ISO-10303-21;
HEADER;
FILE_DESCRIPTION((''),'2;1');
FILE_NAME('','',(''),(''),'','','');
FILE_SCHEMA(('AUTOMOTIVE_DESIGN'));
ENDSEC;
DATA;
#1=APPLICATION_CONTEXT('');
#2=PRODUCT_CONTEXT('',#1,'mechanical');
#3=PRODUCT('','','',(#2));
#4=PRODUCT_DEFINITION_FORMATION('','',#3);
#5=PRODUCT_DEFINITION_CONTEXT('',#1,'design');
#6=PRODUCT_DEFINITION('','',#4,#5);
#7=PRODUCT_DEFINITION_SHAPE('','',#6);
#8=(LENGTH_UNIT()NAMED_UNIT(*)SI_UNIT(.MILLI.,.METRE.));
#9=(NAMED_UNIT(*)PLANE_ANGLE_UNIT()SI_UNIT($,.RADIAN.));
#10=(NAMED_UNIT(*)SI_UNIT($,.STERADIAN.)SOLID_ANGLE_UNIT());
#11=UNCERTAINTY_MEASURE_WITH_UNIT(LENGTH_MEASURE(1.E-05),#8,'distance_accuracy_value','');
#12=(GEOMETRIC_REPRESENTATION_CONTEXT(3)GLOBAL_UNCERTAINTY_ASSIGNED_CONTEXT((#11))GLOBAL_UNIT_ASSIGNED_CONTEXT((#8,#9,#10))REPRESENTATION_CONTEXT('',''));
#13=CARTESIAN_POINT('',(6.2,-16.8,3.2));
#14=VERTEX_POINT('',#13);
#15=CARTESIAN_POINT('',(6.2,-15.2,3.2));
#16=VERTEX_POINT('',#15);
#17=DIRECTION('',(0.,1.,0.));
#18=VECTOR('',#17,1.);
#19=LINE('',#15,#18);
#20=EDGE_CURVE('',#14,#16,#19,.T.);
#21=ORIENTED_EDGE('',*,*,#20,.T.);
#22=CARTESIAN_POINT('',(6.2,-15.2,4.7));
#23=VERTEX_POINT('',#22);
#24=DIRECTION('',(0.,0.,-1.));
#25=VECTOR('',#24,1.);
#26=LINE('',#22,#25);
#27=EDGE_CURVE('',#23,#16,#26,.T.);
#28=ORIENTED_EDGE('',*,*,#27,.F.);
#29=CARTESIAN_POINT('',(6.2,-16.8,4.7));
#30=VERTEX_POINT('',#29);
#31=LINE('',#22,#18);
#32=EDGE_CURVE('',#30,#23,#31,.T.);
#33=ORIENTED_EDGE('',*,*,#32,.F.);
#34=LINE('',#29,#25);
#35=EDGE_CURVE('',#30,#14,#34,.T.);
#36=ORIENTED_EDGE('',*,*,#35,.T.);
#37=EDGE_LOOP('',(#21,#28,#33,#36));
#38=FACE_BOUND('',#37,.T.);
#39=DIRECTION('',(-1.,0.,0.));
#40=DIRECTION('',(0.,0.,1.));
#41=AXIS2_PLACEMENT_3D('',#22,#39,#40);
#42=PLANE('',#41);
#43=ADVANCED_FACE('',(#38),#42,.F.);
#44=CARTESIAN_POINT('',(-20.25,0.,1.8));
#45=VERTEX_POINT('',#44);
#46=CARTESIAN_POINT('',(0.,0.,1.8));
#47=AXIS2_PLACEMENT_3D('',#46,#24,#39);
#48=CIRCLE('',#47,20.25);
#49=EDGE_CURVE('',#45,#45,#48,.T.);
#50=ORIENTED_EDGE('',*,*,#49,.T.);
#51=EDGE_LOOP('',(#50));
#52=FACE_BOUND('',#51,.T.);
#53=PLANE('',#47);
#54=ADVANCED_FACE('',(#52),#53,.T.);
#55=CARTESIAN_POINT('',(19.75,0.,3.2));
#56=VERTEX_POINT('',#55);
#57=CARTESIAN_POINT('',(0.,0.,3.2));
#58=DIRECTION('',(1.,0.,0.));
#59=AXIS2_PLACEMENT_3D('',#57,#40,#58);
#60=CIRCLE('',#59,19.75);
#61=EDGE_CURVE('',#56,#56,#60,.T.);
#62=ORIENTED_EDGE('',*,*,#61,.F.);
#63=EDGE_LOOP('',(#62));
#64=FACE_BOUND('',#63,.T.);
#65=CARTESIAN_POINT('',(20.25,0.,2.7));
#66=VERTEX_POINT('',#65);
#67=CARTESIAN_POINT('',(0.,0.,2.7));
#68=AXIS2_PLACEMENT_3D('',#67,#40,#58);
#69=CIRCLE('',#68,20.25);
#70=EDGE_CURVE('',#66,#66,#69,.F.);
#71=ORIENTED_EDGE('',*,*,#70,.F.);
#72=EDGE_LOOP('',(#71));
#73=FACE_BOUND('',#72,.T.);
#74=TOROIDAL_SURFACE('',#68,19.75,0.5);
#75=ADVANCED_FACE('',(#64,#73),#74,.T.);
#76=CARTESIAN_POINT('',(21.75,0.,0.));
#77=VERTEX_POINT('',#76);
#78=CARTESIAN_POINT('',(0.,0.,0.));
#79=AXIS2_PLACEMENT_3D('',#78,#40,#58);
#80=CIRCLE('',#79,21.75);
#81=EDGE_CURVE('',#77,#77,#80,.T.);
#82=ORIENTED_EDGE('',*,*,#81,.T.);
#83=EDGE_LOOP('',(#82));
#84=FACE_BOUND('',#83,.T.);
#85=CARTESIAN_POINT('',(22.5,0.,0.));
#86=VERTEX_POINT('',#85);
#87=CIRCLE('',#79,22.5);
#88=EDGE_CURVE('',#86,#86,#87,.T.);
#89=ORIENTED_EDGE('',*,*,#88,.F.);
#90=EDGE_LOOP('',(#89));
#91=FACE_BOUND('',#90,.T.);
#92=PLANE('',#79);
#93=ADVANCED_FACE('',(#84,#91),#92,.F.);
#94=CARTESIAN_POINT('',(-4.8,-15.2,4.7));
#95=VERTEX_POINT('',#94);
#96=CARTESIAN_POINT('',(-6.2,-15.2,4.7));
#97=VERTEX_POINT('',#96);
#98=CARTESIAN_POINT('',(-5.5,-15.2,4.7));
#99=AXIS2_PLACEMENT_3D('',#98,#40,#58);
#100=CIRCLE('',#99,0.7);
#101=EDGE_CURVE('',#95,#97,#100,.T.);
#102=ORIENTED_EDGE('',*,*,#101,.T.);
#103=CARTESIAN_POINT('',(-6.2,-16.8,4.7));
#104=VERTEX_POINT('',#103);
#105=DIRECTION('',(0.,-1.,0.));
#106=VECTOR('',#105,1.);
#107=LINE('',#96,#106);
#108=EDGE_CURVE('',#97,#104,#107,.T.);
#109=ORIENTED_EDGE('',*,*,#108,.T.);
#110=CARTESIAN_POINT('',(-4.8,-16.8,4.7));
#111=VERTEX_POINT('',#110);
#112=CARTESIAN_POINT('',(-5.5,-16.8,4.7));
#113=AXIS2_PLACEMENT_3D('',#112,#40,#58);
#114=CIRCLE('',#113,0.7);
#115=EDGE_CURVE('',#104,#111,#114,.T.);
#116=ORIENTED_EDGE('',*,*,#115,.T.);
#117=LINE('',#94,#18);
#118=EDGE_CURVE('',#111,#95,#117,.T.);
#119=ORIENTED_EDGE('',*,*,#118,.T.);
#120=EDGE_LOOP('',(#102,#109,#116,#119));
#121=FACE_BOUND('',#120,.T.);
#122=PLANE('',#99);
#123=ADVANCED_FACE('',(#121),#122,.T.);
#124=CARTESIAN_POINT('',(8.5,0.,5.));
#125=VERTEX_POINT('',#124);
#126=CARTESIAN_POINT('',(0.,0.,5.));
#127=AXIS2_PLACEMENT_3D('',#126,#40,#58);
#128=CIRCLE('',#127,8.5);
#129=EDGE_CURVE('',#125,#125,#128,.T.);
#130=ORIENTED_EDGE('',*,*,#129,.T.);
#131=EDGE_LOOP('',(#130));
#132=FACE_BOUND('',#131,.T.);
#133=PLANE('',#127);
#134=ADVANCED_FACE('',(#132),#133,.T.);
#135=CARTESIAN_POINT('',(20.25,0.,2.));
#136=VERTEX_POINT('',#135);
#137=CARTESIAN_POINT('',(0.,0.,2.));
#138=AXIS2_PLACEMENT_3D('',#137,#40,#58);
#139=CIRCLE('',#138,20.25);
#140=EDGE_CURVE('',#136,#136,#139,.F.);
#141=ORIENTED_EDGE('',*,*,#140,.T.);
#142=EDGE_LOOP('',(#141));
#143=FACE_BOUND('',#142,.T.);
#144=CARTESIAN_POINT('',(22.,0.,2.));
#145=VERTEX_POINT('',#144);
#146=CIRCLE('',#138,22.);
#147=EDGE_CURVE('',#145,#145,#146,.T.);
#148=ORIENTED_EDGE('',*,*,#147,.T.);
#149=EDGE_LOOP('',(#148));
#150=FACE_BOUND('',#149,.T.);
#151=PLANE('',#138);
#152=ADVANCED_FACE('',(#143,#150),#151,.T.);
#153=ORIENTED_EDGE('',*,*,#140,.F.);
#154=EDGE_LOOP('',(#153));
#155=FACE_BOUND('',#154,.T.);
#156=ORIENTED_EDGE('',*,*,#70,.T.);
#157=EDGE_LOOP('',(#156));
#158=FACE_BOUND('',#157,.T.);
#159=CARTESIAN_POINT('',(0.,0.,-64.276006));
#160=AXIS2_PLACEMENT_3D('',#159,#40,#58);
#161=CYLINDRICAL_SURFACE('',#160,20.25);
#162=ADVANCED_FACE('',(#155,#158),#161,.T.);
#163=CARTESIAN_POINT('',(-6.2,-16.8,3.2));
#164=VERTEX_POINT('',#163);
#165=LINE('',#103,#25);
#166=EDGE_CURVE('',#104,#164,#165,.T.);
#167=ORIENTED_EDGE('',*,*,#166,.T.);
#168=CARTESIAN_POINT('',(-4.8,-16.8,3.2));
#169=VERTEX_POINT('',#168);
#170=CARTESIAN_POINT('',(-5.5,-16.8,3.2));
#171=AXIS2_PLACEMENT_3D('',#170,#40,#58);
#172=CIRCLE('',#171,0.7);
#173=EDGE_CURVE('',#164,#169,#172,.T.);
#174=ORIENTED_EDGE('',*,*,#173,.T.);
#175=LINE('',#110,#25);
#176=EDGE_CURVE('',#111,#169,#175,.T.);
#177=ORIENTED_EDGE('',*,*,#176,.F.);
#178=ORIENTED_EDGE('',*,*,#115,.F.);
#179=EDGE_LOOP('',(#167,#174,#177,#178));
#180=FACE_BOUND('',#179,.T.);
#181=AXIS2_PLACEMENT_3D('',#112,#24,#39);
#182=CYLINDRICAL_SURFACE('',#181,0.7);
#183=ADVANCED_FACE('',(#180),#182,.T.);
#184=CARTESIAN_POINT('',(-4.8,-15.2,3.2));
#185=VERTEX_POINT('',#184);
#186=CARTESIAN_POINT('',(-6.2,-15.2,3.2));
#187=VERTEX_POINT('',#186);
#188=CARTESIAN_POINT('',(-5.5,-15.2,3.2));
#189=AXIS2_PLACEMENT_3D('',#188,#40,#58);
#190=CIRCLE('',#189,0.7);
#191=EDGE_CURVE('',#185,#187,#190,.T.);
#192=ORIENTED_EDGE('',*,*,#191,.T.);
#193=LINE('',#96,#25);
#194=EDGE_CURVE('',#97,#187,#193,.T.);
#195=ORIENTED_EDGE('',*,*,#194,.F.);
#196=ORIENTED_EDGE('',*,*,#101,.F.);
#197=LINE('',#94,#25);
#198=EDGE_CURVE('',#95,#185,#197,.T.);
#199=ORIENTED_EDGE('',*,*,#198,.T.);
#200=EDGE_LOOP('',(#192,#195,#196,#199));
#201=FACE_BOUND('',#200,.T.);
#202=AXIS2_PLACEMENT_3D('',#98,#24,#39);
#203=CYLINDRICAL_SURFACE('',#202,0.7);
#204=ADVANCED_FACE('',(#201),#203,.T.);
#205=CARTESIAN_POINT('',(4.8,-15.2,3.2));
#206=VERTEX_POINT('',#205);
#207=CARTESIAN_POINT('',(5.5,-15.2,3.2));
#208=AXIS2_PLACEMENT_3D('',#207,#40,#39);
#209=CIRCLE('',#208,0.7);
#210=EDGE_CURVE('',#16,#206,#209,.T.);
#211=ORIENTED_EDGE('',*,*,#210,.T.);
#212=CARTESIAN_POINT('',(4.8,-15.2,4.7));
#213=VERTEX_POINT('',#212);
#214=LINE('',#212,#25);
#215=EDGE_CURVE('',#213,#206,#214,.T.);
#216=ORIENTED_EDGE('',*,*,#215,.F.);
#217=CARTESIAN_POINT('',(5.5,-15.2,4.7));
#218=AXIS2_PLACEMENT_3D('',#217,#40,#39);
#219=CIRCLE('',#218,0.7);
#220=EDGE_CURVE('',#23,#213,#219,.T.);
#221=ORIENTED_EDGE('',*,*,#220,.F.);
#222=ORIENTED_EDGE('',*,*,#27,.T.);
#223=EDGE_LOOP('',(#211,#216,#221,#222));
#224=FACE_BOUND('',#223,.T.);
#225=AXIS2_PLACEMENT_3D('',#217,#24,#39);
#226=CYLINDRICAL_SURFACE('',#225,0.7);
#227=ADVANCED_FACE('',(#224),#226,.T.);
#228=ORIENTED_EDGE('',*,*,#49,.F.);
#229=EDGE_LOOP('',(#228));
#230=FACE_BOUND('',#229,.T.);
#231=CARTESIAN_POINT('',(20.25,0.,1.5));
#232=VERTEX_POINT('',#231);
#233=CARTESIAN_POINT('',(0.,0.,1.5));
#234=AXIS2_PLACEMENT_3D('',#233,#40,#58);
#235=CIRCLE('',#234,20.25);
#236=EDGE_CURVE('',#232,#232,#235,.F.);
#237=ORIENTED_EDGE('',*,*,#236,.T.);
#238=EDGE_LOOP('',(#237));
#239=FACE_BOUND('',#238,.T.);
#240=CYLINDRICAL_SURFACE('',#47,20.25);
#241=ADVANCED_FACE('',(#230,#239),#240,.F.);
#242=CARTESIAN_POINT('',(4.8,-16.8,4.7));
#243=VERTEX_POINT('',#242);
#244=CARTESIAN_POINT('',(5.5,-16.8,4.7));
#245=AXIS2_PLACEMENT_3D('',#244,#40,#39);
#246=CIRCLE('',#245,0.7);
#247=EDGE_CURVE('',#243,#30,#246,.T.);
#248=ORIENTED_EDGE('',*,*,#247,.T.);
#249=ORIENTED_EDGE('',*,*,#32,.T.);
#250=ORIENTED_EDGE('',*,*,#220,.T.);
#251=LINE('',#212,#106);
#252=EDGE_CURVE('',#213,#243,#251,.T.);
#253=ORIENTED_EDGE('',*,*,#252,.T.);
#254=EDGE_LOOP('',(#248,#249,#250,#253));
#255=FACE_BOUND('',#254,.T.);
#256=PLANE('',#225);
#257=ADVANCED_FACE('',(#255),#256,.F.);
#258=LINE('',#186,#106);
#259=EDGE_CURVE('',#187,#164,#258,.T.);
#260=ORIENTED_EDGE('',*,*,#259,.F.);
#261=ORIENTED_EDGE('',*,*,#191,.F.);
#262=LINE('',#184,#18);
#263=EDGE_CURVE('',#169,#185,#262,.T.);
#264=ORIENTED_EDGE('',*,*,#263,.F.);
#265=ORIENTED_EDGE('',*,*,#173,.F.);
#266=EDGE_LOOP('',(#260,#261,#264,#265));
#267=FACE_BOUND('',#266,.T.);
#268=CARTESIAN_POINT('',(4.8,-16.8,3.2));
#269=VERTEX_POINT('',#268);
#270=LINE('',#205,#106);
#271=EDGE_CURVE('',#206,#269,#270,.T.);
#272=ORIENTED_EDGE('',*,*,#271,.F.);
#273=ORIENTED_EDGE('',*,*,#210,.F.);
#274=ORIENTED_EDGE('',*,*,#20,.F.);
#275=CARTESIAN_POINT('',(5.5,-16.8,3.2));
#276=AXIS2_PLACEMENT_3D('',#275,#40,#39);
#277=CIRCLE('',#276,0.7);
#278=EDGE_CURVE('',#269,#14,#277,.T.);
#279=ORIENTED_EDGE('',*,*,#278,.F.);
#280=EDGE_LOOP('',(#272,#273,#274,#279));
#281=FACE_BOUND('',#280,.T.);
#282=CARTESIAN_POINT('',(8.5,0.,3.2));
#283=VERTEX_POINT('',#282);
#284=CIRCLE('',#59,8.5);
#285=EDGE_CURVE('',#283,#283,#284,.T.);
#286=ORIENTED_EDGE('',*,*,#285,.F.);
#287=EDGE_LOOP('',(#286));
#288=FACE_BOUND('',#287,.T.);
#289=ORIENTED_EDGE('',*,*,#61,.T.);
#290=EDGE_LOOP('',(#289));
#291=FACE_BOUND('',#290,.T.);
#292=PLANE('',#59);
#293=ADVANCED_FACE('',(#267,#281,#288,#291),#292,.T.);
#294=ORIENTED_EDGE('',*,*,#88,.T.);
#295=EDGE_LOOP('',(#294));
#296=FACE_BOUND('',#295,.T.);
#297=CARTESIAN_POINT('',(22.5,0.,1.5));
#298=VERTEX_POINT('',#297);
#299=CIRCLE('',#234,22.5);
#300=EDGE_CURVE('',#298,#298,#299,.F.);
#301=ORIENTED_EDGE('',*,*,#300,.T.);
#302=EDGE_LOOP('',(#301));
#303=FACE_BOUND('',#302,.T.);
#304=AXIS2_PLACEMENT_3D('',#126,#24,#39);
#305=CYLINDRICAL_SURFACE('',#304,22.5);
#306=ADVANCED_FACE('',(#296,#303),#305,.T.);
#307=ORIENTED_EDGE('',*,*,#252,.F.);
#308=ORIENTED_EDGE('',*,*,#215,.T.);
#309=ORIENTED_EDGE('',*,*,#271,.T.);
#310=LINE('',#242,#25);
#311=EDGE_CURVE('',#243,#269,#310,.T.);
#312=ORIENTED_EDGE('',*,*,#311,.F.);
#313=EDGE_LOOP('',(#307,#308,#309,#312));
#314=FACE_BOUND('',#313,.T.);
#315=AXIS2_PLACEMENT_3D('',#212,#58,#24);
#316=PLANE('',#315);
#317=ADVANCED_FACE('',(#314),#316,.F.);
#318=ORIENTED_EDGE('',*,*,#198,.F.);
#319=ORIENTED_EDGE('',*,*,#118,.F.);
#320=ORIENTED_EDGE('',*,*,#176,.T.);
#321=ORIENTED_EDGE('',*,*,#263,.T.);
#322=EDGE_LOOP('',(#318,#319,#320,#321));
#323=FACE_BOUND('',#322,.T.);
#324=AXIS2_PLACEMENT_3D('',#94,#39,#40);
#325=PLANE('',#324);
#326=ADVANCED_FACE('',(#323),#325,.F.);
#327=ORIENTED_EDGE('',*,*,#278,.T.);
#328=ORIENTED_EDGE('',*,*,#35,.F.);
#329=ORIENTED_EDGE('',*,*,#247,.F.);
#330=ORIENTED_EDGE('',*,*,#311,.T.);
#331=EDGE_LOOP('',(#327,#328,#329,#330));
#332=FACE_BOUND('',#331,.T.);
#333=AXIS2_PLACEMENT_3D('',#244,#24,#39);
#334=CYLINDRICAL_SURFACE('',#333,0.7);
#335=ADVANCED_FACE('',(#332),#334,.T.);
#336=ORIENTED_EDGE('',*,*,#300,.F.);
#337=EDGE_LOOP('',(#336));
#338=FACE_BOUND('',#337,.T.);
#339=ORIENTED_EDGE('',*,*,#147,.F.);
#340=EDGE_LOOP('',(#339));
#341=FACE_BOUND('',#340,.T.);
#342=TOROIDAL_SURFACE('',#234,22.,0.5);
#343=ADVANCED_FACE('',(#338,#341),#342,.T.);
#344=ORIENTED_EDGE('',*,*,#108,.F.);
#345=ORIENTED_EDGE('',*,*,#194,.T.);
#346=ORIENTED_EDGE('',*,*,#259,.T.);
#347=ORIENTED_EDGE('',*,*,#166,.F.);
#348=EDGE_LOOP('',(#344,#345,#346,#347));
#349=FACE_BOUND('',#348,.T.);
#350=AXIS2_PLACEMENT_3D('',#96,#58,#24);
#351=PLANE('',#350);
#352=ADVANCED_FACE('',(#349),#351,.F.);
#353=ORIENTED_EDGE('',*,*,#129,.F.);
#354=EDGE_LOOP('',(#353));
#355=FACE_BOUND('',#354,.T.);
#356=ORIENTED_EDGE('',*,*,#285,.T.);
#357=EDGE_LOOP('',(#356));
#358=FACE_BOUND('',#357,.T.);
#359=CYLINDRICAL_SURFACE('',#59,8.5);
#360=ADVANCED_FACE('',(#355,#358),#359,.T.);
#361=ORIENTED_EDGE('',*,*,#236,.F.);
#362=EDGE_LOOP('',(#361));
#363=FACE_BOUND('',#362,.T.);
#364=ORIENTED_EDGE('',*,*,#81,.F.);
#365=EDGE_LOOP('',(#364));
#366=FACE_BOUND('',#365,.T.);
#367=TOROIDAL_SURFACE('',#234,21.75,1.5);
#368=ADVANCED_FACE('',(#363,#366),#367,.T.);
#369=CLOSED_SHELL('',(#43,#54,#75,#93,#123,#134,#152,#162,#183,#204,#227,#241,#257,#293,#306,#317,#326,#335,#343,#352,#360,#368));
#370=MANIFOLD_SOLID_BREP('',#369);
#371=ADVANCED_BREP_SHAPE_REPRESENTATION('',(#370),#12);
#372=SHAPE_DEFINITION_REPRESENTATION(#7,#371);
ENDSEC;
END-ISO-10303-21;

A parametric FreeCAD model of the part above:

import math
import FreeCAD as App
import Part
import Sketcher

V = App.Vector


def edges_at(feature, points):
    """Names of the edges that pass closest to the given points."""
    edges = feature.Shape.Edges
    near = lambda p: min(range(len(edges)), key=lambda i: edges[i].distToShape(Part.Vertex(*p))[0])
    return sorted({f"Edge{near(p) + 1}" for p in points})


def add_polygon(sketch, points):
    """Adds a closed chain of lines whose ends are joined by coincident constraints."""
    first, n = sketch.GeometryCount, len(points)
    for a, b in zip(points, points[1:] + points[:1]):
        sketch.addGeometry(Part.LineSegment(App.Vector(*a, 0), App.Vector(*b, 0)), False)
    for i in range(n):
        sketch.addConstraint(Sketcher.Constraint("Coincident", first + i, 2, first + (i + 1) % n, 1))

doc = App.newDocument("Part")
body = doc.addObject("PartDesign::Body", "Body")

sketch1 = body.newObject("Sketcher::SketchObject", "Sketch")
sketch1.AttachmentSupport = (doc.getObject("XY_Plane"), [""])
sketch1.MapMode = "FlatFace"
sketch1.addGeometry(Part.Circle(V(0, 0, 0), V(0, 0, 1), 22.5), False)
sketch1.addConstraint([
    Sketcher.Constraint("Coincident", 0, 3, -1, 1),
    Sketcher.Constraint("Diameter", 0, 45.0),
])
pad1 = body.newObject("PartDesign::Pad", "Pad")
pad1.Profile = sketch1
pad1.Length = 5

sketch2 = body.newObject("Sketcher::SketchObject", "Sketch001")
sketch2.AttachmentSupport = (doc.getObject("XY_Plane"), [""])
sketch2.MapMode = "FlatFace"
sketch2.AttachmentOffset = App.Placement(V(0, 0, 5), App.Rotation())
add_polygon(sketch2, [(-29.884, 29.884), (-29.884, -29.884), (29.884, -29.884), (29.884, 29.884)])
sketch2.addGeometry(Part.Circle(V(0, 0, 0), V(0, 0, 1), 20.25), False)
sketch2.addConstraint([
    Sketcher.Constraint("Vertical", 0),
    Sketcher.Constraint("Horizontal", 1),
    Sketcher.Constraint("Vertical", 2),
    Sketcher.Constraint("Horizontal", 3),
    Sketcher.Constraint("Coincident", 4, 3, -1, 1),
    Sketcher.Constraint("Symmetric", 0, 2, 2, 2, -1, 1),
    Sketcher.Constraint("Equal", 3, 0),
    Sketcher.Constraint("Diameter", 4, 40.5),
    Sketcher.Constraint("DistanceX", 1, 1, 1, 2, 59.768),
])
pocket1 = body.newObject("PartDesign::Pocket", "Pocket")
pocket1.Profile = sketch2
pocket1.Length = 3

sketch3 = body.newObject("Sketcher::SketchObject", "Sketch002")
sketch3.AttachmentSupport = (doc.getObject("XY_Plane"), [""])
sketch3.MapMode = "FlatFace"
sketch3.AttachmentOffset = App.Placement(V(0, 0, 5), App.Rotation())
add_polygon(sketch3, [(-29.884, 29.884), (-29.884, -29.884), (29.884, -29.884), (29.884, 29.884)])
sketch3.addGeometry(Part.Circle(V(0, 0, 0), V(0, 0, 1), 8.5), False)
sketch3.addConstraint([
    Sketcher.Constraint("Vertical", 0),
    Sketcher.Constraint("Horizontal", 1),
    Sketcher.Constraint("Vertical", 2),
    Sketcher.Constraint("Horizontal", 3),
    Sketcher.Constraint("Coincident", 4, 3, -1, 1),
    Sketcher.Constraint("Symmetric", 0, 2, 2, 2, -1, 1),
    Sketcher.Constraint("Equal", 3, 0),
    Sketcher.Constraint("Diameter", 4, 17.0),
    Sketcher.Constraint("DistanceX", 1, 1, 1, 2, 59.768),
])
pocket2 = body.newObject("PartDesign::Pocket", "Pocket001")
pocket2.Profile = sketch3
pocket2.Length = 1.8

sketch4 = body.newObject("Sketcher::SketchObject", "Sketch003")
sketch4.AttachmentSupport = (doc.getObject("XY_Plane"), [""])
sketch4.MapMode = "FlatFace"
sketch4.AttachmentOffset = App.Placement(V(0, 0, 1.8), App.Rotation())
sketch4.addGeometry(Part.Circle(V(0, 0, 0), V(0, 0, 1), 20.25), False)
sketch4.addConstraint([
    Sketcher.Constraint("Coincident", 0, 3, -1, 1),
    Sketcher.Constraint("Diameter", 0, 40.5),
])
pocket3 = body.newObject("PartDesign::Pocket", "Pocket002")
pocket3.Profile = sketch4
pocket3.Length = 1.8
doc.recompute()

fillet = body.newObject("PartDesign::Fillet", "Fillet")
fillet.Base = (pocket3, edges_at(pocket3, [(-20.25, 0, 0)]))
fillet.Radius = 1.5
doc.recompute()

fillet2 = body.newObject("PartDesign::Fillet", "Fillet001")
fillet2.Base = (fillet, edges_at(fillet, [(-22.5, 0, 2)]))
fillet2.Radius = 0.5
doc.recompute()

fillet3 = body.newObject("PartDesign::Fillet", "Fillet002")
fillet3.Base = (fillet2, edges_at(fillet2, [(-20.25, 0, 3.2)]))
fillet3.Radius = 0.5

sketch5 = body.newObject("Sketcher::SketchObject", "Sketch004")
sketch5.AttachmentSupport = (doc.getObject("XY_Plane"), [""])
sketch5.MapMode = "FlatFace"
sketch5.AttachmentOffset = App.Placement(V(0, 0, 3.2), App.Rotation())
sketch5.addGeometry([
    Part.LineSegment(V(-4.8, -16.8, 0), V(-4.8, -15.2, 0)),
    Part.ArcOfCircle(Part.Circle(V(-5.5, -15.2, 0), V(0, 0, 1), 0.7), math.radians(0), math.radians(180)),
    Part.LineSegment(V(-6.2, -15.2, 0), V(-6.2, -16.8, 0)),
    Part.ArcOfCircle(Part.Circle(V(-5.5, -16.8, 0), V(0, 0, 1), 0.7), math.radians(180), math.radians(360)),
    Part.LineSegment(V(4.8, -15.2, 0), V(4.8, -16.8, 0)),
    Part.ArcOfCircle(Part.Circle(V(5.5, -16.8, 0), V(0, 0, 1), 0.7), math.radians(180), math.radians(360)),
    Part.LineSegment(V(6.2, -16.8, 0), V(6.2, -15.2, 0)),
    Part.ArcOfCircle(Part.Circle(V(5.5, -15.2, 0), V(0, 0, 1), 0.7), math.radians(0), math.radians(180)),
], False)
sketch5.addConstraint([
    Sketcher.Constraint("Tangent", 0, 2, 1, 1),
    Sketcher.Constraint("Tangent", 1, 2, 2, 1),
    Sketcher.Constraint("Tangent", 2, 2, 3, 1),
    Sketcher.Constraint("Tangent", 3, 2, 0, 1),
    Sketcher.Constraint("Tangent", 4, 2, 5, 1),
    Sketcher.Constraint("Tangent", 5, 2, 6, 1),
    Sketcher.Constraint("Tangent", 6, 2, 7, 1),
    Sketcher.Constraint("Tangent", 7, 2, 4, 1),
    Sketcher.Constraint("Vertical", 0),
    Sketcher.Constraint("Vertical", 2),
    Sketcher.Constraint("Vertical", 4),
    Sketcher.Constraint("Vertical", 6),
    Sketcher.Constraint("Equal", 3, 5),
    Sketcher.Constraint("Symmetric", 3, 3, 5, 3, -2),
    Sketcher.Constraint("Horizontal", 1, 3, 7, 3),
    Sketcher.Constraint("Radius", 1, 0.7),
    Sketcher.Constraint("DistanceY", 0, 1, 0, 2, 1.6),
    Sketcher.Constraint("DistanceX", 3, 3, 5, 3, 11.0),
    Sketcher.Constraint("DistanceY", 1, 3, -1, 1, 15.2),
])
pad2 = body.newObject("PartDesign::Pad", "Pad001")
pad2.Profile = sketch5
pad2.Length = 1.5

doc.recompute()
